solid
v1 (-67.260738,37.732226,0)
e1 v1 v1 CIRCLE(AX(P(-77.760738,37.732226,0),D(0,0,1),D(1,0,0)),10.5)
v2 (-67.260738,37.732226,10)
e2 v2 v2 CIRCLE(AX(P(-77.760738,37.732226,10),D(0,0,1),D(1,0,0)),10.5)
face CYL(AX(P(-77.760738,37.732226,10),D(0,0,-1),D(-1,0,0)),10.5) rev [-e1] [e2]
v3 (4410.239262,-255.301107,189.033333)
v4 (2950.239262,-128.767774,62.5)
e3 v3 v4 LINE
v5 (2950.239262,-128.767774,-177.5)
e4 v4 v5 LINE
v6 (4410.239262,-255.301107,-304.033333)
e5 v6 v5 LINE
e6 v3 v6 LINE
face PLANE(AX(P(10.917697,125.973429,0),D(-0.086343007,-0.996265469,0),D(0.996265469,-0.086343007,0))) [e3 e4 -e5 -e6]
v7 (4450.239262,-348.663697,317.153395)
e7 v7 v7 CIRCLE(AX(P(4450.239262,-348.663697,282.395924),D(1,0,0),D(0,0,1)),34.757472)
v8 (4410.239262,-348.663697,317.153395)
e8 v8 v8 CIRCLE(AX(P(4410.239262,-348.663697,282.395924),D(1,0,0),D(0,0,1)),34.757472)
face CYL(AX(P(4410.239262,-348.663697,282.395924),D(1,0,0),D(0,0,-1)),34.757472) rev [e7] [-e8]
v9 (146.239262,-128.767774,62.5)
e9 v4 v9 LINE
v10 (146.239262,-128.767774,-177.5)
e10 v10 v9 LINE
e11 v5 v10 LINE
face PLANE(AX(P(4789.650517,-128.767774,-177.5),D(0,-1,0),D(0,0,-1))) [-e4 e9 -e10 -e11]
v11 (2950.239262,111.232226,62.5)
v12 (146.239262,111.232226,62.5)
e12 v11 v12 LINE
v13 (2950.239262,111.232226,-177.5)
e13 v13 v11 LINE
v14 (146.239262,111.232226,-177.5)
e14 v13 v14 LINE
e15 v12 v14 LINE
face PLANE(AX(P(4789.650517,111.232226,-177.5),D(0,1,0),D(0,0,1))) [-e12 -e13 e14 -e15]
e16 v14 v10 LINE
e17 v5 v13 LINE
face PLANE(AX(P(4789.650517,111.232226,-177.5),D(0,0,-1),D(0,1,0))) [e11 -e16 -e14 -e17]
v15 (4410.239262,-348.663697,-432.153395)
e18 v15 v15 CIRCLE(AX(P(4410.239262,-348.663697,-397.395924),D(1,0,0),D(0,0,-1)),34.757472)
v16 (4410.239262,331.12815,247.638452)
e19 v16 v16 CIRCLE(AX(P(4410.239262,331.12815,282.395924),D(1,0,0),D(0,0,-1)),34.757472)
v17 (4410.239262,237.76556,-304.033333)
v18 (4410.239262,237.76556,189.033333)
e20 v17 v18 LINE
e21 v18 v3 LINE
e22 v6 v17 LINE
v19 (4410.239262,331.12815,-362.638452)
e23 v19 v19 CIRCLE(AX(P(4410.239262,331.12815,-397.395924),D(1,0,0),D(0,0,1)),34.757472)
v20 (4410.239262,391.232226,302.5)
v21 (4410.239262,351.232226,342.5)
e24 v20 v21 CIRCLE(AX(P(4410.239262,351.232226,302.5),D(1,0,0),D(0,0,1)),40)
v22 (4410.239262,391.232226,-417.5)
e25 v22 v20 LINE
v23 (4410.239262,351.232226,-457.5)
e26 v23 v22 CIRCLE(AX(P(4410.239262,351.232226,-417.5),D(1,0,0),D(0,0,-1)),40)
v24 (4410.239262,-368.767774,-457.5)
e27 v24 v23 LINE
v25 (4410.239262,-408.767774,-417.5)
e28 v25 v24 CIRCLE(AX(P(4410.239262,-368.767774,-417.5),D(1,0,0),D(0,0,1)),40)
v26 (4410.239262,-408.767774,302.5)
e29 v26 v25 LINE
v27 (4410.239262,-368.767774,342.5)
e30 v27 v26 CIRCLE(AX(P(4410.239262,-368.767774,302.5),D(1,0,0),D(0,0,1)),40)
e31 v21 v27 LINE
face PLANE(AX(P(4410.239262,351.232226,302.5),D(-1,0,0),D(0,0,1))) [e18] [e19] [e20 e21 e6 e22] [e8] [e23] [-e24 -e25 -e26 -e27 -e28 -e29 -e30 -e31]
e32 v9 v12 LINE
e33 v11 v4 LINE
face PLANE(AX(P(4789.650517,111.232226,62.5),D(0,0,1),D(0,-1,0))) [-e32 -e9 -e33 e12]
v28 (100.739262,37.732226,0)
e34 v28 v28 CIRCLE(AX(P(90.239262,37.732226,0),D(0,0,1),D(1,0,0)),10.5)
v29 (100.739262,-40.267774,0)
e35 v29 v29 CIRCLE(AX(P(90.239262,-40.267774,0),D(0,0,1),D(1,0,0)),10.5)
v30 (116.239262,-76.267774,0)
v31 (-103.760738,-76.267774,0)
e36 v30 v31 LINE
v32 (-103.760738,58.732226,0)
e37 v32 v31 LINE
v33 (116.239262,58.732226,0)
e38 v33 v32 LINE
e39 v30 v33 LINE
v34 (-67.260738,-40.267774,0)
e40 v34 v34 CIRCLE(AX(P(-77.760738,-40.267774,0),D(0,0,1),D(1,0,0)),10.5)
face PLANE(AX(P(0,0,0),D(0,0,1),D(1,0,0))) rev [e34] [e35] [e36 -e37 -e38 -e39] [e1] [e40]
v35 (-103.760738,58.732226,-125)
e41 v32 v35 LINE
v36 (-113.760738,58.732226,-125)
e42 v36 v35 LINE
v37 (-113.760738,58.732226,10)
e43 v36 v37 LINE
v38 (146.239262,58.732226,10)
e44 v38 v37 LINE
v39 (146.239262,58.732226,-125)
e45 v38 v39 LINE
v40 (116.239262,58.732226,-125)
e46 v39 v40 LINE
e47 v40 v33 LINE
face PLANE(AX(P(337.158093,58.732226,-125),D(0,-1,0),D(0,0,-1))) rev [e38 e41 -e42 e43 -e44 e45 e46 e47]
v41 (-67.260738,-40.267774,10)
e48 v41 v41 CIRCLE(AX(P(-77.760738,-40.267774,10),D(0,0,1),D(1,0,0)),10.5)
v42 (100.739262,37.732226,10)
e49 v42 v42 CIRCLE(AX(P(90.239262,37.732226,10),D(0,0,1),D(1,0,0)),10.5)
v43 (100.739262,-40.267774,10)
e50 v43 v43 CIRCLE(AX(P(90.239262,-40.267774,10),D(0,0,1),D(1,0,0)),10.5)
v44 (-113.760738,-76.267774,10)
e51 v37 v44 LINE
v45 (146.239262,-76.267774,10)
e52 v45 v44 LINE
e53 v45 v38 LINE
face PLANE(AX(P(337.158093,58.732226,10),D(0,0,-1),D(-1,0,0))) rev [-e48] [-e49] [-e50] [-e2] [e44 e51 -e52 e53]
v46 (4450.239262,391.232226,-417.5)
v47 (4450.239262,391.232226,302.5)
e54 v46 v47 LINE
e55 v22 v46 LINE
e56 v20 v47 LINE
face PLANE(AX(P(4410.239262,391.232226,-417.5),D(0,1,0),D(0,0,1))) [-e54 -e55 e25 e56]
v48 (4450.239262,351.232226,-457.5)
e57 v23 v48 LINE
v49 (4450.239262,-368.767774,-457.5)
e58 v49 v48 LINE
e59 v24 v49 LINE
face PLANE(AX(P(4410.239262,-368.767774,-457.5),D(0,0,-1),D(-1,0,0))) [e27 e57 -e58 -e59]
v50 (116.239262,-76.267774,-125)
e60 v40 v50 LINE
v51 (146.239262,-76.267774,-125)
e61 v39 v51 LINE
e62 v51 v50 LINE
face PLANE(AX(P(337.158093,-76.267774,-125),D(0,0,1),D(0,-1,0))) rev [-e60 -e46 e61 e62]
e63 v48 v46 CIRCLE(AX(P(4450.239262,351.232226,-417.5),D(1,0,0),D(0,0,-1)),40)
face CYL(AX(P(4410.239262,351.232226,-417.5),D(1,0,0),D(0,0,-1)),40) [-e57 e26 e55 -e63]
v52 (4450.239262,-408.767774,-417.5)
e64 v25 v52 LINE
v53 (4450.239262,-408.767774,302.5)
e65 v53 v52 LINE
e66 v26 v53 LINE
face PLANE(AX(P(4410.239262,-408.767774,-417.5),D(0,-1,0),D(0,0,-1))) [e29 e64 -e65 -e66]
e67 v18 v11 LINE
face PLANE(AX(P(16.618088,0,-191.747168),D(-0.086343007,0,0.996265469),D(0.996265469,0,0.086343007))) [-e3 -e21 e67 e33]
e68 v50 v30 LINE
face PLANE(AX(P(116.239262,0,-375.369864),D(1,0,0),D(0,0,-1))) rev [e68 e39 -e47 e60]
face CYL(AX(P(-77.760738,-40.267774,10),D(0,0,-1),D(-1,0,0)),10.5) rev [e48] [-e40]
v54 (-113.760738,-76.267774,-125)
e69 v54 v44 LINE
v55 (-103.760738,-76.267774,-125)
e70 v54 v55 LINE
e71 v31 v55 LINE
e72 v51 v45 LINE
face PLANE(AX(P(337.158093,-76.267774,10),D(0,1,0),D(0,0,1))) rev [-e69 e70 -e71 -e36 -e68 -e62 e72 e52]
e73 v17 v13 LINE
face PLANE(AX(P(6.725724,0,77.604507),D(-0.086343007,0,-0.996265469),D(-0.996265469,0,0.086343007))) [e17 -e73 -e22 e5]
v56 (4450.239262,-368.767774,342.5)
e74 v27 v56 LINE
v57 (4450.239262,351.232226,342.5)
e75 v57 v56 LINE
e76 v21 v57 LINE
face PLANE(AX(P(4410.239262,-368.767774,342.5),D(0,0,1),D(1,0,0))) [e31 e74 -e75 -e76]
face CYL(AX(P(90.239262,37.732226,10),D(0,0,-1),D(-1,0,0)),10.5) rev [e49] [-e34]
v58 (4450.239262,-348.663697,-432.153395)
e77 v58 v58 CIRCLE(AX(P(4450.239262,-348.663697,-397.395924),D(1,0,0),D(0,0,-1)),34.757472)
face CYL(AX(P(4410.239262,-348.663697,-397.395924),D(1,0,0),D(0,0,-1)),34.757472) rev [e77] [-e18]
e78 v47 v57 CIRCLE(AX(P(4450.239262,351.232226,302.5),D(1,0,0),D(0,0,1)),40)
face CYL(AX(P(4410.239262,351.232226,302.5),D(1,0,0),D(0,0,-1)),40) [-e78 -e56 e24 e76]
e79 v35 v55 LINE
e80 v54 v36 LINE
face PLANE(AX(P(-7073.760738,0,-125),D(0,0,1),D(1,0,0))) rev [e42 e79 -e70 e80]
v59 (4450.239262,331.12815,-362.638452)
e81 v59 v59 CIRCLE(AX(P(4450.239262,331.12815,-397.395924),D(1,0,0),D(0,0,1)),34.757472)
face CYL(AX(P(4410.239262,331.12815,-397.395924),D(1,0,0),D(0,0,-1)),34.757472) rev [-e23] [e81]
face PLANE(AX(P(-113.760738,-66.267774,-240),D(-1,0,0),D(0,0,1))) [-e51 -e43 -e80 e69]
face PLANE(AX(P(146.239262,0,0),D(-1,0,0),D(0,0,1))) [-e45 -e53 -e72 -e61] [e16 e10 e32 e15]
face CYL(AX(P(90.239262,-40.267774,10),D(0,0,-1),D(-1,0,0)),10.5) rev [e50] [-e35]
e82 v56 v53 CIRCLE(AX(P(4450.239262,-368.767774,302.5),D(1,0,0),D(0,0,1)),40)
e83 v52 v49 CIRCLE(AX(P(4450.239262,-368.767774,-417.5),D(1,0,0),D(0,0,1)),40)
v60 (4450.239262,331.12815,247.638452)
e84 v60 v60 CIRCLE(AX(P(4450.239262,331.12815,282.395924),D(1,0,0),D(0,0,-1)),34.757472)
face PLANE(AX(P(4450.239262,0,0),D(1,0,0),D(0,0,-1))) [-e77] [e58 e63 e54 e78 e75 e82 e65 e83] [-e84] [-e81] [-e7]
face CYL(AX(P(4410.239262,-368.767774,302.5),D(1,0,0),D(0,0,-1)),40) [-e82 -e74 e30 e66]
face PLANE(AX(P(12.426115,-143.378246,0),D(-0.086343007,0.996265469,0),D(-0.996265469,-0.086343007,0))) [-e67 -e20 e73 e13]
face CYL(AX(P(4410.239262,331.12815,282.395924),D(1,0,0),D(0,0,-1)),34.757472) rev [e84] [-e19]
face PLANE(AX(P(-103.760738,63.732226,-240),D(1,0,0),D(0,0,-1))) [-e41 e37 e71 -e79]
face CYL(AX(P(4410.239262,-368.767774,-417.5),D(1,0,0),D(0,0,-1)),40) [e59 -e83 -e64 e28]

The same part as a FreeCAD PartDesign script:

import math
import FreeCAD as App
import Part
import Sketcher

V = App.Vector

doc = App.newDocument("Part")
body = doc.addObject("PartDesign::Body", "Body")

# Sketch on XY plane
sketch1 = doc.addObject("Sketcher::SketchObject", "Sketch")
body.addObject(sketch1)
sketch1.AttachmentSupport = (doc.XY_Plane, [""])
sketch1.MapMode = "FlatFace"
sketch1.addGeometry([
    Part.LineSegment(V(-104, 64, 0), V(-104, -66, 0)),  # 0
    Part.LineSegment(V(-104, -66, 0), V(116, -66, 0)),  # 1
    Part.LineSegment(V(116, -66, 0), V(116, 64, 0)),  # 2
    Part.LineSegment(V(116, 64, 0), V(-104, 64, 0)),  # 3
    Part.Circle(V(-78, -40, 0), V(0, 0, 1), 10),  # 4
    Part.Circle(V(90, -40, 0), V(0, 0, 1), 10),  # 5
    Part.Circle(V(-78, 38, 0), V(0, 0, 1), 10),  # 6
    Part.Circle(V(90, 38, 0), V(0, 0, 1), 10),  # 7
], False)
sketch1.addConstraint([
    Sketcher.Constraint("Coincident", 0, 2, 1, 1),
    Sketcher.Constraint("Coincident", 1, 2, 2, 1),
    Sketcher.Constraint("Coincident", 2, 2, 3, 1),
    Sketcher.Constraint("Coincident", 3, 2, 0, 1),
    Sketcher.Constraint("Vertical", 0),
    Sketcher.Constraint("Horizontal", 1),
    Sketcher.Constraint("Vertical", 2),
    Sketcher.Constraint("Horizontal", 3),
    Sketcher.Constraint("Equal", 4, 5),
    Sketcher.Constraint("Equal", 5, 6),
    Sketcher.Constraint("Equal", 6, 7),
    Sketcher.Constraint("Horizontal", 4, 3, 5, 3),
    Sketcher.Constraint("Horizontal", 6, 3, 7, 3),
    Sketcher.Constraint("Vertical", 4, 3, 6, 3),
    Sketcher.Constraint("Vertical", 5, 3, 7, 3),
    Sketcher.Constraint("Diameter", 4, 21.0),
    Sketcher.Constraint("DistanceX", 1, 1, 1, 2, 220.0),
    Sketcher.Constraint("DistanceY", 0, 2, 0, 1, 130.0),
    Sketcher.Constraint("DistanceX", 4, 3, 5, 3, 168.0),
    Sketcher.Constraint("DistanceY", 4, 3, 6, 3, 78.0),
    Sketcher.Constraint("DistanceX", 0, 2, 4, 3, 26.0),
    Sketcher.Constraint("DistanceY", 0, 2, 4, 3, 26.0),
    Sketcher.Constraint("DistanceX", 4, 3, -1, 1, 77.760738),
    Sketcher.Constraint("DistanceY", 4, 3, -1, 1, 40.267774),
])
pad1 = doc.addObject("PartDesign::Pad", "Pad")
body.addObject(pad1)
pad1.Profile = sketch1
pad1.Length = 10

# Sketch on XY plane
sketch2 = doc.addObject("Sketcher::SketchObject", "Sketch001")
body.addObject(sketch2)
sketch2.AttachmentSupport = (doc.XY_Plane, [""])
sketch2.MapMode = "FlatFace"
sketch2.AttachmentOffset = App.Placement(V(0, 0, 10), App.Rotation())
sketch2.addGeometry([
    Part.LineSegment(V(-104, 64, 0), V(-114, 64, 0)),  # 0
    Part.LineSegment(V(-114, 64, 0), V(-114, -76, 0)),  # 1
    Part.LineSegment(V(-114, -76, 0), V(116, -76, 0)),  # 2
    Part.LineSegment(V(116, -76, 0), V(116, -66, 0)),  # 3
    Part.LineSegment(V(116, -66, 0), V(-104, -66, 0)),  # 4
    Part.LineSegment(V(-104, -66, 0), V(-104, 64, 0)),  # 5
], False)
sketch2.addConstraint([
    Sketcher.Constraint("Coincident", 0, 2, 1, 1),
    Sketcher.Constraint("Coincident", 1, 2, 2, 1),
    Sketcher.Constraint("Coincident", 2, 2, 3, 1),
    Sketcher.Constraint("Coincident", 3, 2, 4, 1),
    Sketcher.Constraint("Coincident", 4, 2, 5, 1),
    Sketcher.Constraint("Coincident", 5, 2, 0, 1),
    Sketcher.Constraint("Horizontal", 0),
    Sketcher.Constraint("Vertical", 1),
    Sketcher.Constraint("Horizontal", 2),
    Sketcher.Constraint("Vertical", 3),
    Sketcher.Constraint("Horizontal", 4),
    Sketcher.Constraint("Vertical", 5),
    Sketcher.Constraint("Equal", 0, 3),
    Sketcher.Constraint("DistanceX", 0, 2, 0, 1, 10.0),
    Sketcher.Constraint("DistanceX", 2, 1, 2, 2, 230.0),
    Sketcher.Constraint("DistanceY", 1, 2, 1, 1, 140.0),
    Sketcher.Constraint("DistanceX", 0, 2, -1, 1, 113.760738),
    Sketcher.Constraint("DistanceY", -1, 1, 0, 2, 63.732226),
])
pad2 = doc.addObject("PartDesign::Pad", "Pad001")
body.addObject(pad2)
pad2.Profile = sketch2
pad2.Length = 250
pad2.Reversed = True

# Sketch on XZ plane
sketch3 = doc.addObject("Sketcher::SketchObject", "Sketch002")
body.addObject(sketch3)
sketch3.AttachmentSupport = (doc.XZ_Plane, [""])
sketch3.MapMode = "FlatFace"
sketch3.AttachmentOffset = App.Placement(V(0, 0, -63.732226), App.Rotation())
sketch3.addGeometry([
    Part.LineSegment(V(116, 0, 0), V(-104, 0, 0)),  # 0
    Part.LineSegment(V(-104, 0, 0), V(-104, -240, 0)),  # 1
    Part.LineSegment(V(-104, -240, 0), V(-114, -240, 0)),  # 2
    Part.LineSegment(V(-114, -240, 0), V(-114, 10, 0)),  # 3
    Part.LineSegment(V(-114, 10, 0), V(116, 10, 0)),  # 4
    Part.LineSegment(V(116, 10, 0), V(116, 0, 0)),  # 5
], False)
sketch3.addConstraint([
    Sketcher.Constraint("Coincident", 0, 2, 1, 1),
    Sketcher.Constraint("Coincident", 1, 2, 2, 1),
    Sketcher.Constraint("Coincident", 2, 2, 3, 1),
    Sketcher.Constraint("Coincident", 3, 2, 4, 1),
    Sketcher.Constraint("Coincident", 4, 2, 5, 1),
    Sketcher.Constraint("Coincident", 5, 2, 0, 1),
    Sketcher.Constraint("Horizontal", 0),
    Sketcher.Constraint("Vertical", 1),
    Sketcher.Constraint("Horizontal", 2),
    Sketcher.Constraint("Vertical", 3),
    Sketcher.Constraint("Horizontal", 4),
    Sketcher.Constraint("Vertical", 5),
    Sketcher.Constraint("PointOnObject", 0, 2, -1),
    Sketcher.Constraint("Equal", 2, 5),
    Sketcher.Constraint("DistanceX", 0, 2, 0, 1, 220.0),
    Sketcher.Constraint("DistanceX", 2, 2, 2, 1, 10.0),
    Sketcher.Constraint("DistanceY", 1, 2, 1, 1, 240.0),
    Sketcher.Constraint("DistanceX", 0, 2, -1, 1, 103.760738),
])
pocket1 = doc.addObject("PartDesign::Pocket", "Pocket")
body.addObject(pocket1)
pocket1.Profile = sketch3
pocket1.Length = 5
pocket1.Reversed = True

# Sketch on XY plane
sketch4 = doc.addObject("Sketcher::SketchObject", "Sketch003")
body.addObject(sketch4)
sketch4.AttachmentSupport = (doc.XY_Plane, [""])
sketch4.MapMode = "FlatFace"
sketch4.AttachmentOffset = App.Placement(V(0, 0, 10), App.Rotation())
sketch4.addGeometry([
    Part.LineSegment(V(116, 59, 0), V(116, -76, 0)),
    Part.LineSegment(V(116, -76, 0), V(126, -76, 0)),
    Part.LineSegment(V(126, -76, 0), V(126, 59, 0)),
    Part.LineSegment(V(126, 59, 0), V(116, 59, 0)),
], False)
sketch4.addConstraint([
    Sketcher.Constraint("Coincident", 0, 2, 1, 1),
    Sketcher.Constraint("Coincident", 1, 2, 2, 1),
    Sketcher.Constraint("Coincident", 2, 2, 3, 1),
    Sketcher.Constraint("Coincident", 3, 2, 0, 1),
    Sketcher.Constraint("Vertical", 0),
    Sketcher.Constraint("Horizontal", 1),
    Sketcher.Constraint("Vertical", 2),
    Sketcher.Constraint("Horizontal", 3),
    Sketcher.Constraint("DistanceX", 1, 1, 1, 2, 10.0),
    Sketcher.Constraint("DistanceY", 0, 2, 0, 1, 135.0),
    Sketcher.Constraint("DistanceX", -1, 1, 0, 2, 116.239262),
    Sketcher.Constraint("DistanceY", 0, 2, -1, 1, 76.267774),
])
pad3 = doc.addObject("PartDesign::Pad", "Pad002")
body.addObject(pad3)
pad3.Profile = sketch4
pad3.Length = 250
pad3.Reversed = True
body2 = doc.addObject("PartDesign::Body", "Body001")

# Sketch on YZ plane
sketch5 = doc.addObject("Sketcher::SketchObject", "Sketch004")
body2.addObject(sketch5)
sketch5.AttachmentSupport = (doc.getObject("YZ_Plane001"), [""])
sketch5.MapMode = "FlatFace"
sketch5.AttachmentOffset = App.Placement(V(0, 0, 126.239262), App.Rotation())
sketch5.addGeometry([
    Part.LineSegment(V(59, 10, 0), V(-76, 10, 0)),
    Part.LineSegment(V(-76, 10, 0), V(-76, -240, 0)),
    Part.LineSegment(V(-76, -240, 0), V(59, -240, 0)),
    Part.LineSegment(V(59, -240, 0), V(59, 10, 0)),
], False)
sketch5.addConstraint([
    Sketcher.Constraint("Coincident", 0, 2, 1, 1),
    Sketcher.Constraint("Coincident", 1, 2, 2, 1),
    Sketcher.Constraint("Coincident", 2, 2, 3, 1),
    Sketcher.Constraint("Coincident", 3, 2, 0, 1),
    Sketcher.Constraint("Horizontal", 0),
    Sketcher.Constraint("Vertical", 1),
    Sketcher.Constraint("Horizontal", 2),
    Sketcher.Constraint("Vertical", 3),
    Sketcher.Constraint("DistanceX", 0, 2, 0, 1, 135.0),
    Sketcher.Constraint("DistanceY", 1, 2, 1, 1, 250.0),
    Sketcher.Constraint("DistanceY", -1, 1, 0, 2, 10.0),
    Sketcher.Constraint("DistanceX", 0, 2, -1, 1, 76.267774),
])
pad4 = doc.addObject("PartDesign::Pad", "Pad003")
body2.addObject(pad4)
pad4.Profile = sketch5
pad4.Length = 2800
body3 = doc.addObject("PartDesign::Body", "Body002")

# Sketch on YZ plane
sketch6 = doc.addObject("Sketcher::SketchObject", "Sketch005")
body3.addObject(sketch6)
sketch6.AttachmentSupport = (doc.getObject("YZ_Plane002"), [""])
sketch6.MapMode = "FlatFace"
sketch6.AttachmentOffset = App.Placement(V(0, 0, 2926.239262), App.Rotation())
sketch6.addGeometry([
    Part.LineSegment(V(59, -125, 0), V(-76, -125, 0)),
    Part.LineSegment(V(-76, -125, 0), V(-76, -240, 0)),
    Part.LineSegment(V(-76, -240, 0), V(59, -240, 0)),
    Part.LineSegment(V(59, -240, 0), V(59, -125, 0)),
], False)
sketch6.addConstraint([
    Sketcher.Constraint("Coincident", 0, 2, 1, 1),
    Sketcher.Constraint("Coincident", 1, 2, 2, 1),
    Sketcher.Constraint("Coincident", 2, 2, 3, 1),
    Sketcher.Constraint("Coincident", 3, 2, 0, 1),
    Sketcher.Constraint("Horizontal", 0),
    Sketcher.Constraint("Vertical", 1),
    Sketcher.Constraint("Horizontal", 2),
    Sketcher.Constraint("Vertical", 3),
    Sketcher.Constraint("DistanceX", 0, 2, 0, 1, 135.0),
    Sketcher.Constraint("DistanceY", 1, 2, 1, 1, 115.0),
    Sketcher.Constraint("DistanceY", 0, 2, -1, 1, 125.0),
    Sketcher.Constraint("DistanceX", 0, 2, -1, 1, 76.267774),
])
pad5 = doc.addObject("PartDesign::Pad", "Pad004")
body3.addObject(pad5)
pad5.Profile = sketch6
pad5.Length = 10000
pad5.Reversed = True
doc.recompute()

body4 = doc.addObject("PartDesign::Body", "Body003")
body4.BaseFeature = body3
boolean = doc.addObject("PartDesign::Boolean", "Boolean")
body.addObject(boolean)
boolean.Type = "Cut"
boolean.addObjects([body4])
doc.recompute()

boolean2 = doc.addObject("PartDesign::Boolean", "Boolean001")
body2.addObject(boolean2)
boolean2.Type = "Cut"
boolean2.addObjects([body3])
body.AllowCompound = True
doc.recompute()

boolean3 = doc.addObject("PartDesign::Boolean", "Boolean002")
body.addObject(boolean3)
boolean3.Type = "Fuse"
boolean3.addObjects([body2])

# Sketch on YZ plane
sketch7 = doc.addObject("Sketcher::SketchObject", "Sketch006")
body.addObject(sketch7)
sketch7.AttachmentSupport = (doc.YZ_Plane, [""])
sketch7.MapMode = "FlatFace"
sketch7.AttachmentOffset = App.Placement(V(0, 0, 2926.239262), App.Rotation())
sketch7.addGeometry([
    Part.LineSegment(V(76, 28, 0), V(-94, 28, 0)),
    Part.LineSegment(V(-94, 28, 0), V(-94, -142, 0)),
    Part.LineSegment(V(-94, -142, 0), V(76, -142, 0)),
    Part.LineSegment(V(76, -142, 0), V(76, 28, 0)),
], False)
sketch7.addConstraint([
    Sketcher.Constraint("Coincident", 0, 2, 1, 1),
    Sketcher.Constraint("Coincident", 1, 2, 2, 1),
    Sketcher.Constraint("Coincident", 2, 2, 3, 1),
    Sketcher.Constraint("Coincident", 3, 2, 0, 1),
    Sketcher.Constraint("Horizontal", 0),
    Sketcher.Constraint("Vertical", 1),
    Sketcher.Constraint("Horizontal", 2),
    Sketcher.Constraint("Vertical", 3),
    Sketcher.Constraint("Equal", 2, 1),
    Sketcher.Constraint("DistanceX", 0, 2, 0, 1, 170.0),
    Sketcher.Constraint("DistanceY", -1, 1, 0, 2, 27.5),
    Sketcher.Constraint("DistanceX", 0, 2, -1, 1, 93.767774),
])
pad6 = doc.addObject("PartDesign::Pad", "Pad005")
body.addObject(pad6)
pad6.Profile = sketch7
pad6.Length = 2800
pad6.Reversed = True

# Sketch on XZ plane
sketch8 = doc.addObject("Sketcher::SketchObject", "Sketch007")
body.addObject(sketch8)
sketch8.AttachmentSupport = (doc.XZ_Plane, [""])
sketch8.MapMode = "FlatFace"
sketch8.AttachmentOffset = App.Placement(V(0, 0, 76.267774), App.Rotation())
sketch8.addGeometry([
    Part.LineSegment(V(116, 0, 0), V(-104, 0, 0)),
    Part.LineSegment(V(-104, 0, 0), V(-104, -125, 0)),
    Part.LineSegment(V(-104, -125, 0), V(116, -125, 0)),
    Part.LineSegment(V(116, -125, 0), V(116, 0, 0)),
], False)
sketch8.addConstraint([
    Sketcher.Constraint("Coincident", 0, 2, 1, 1),
    Sketcher.Constraint("Coincident", 1, 2, 2, 1),
    Sketcher.Constraint("Coincident", 2, 2, 3, 1),
    Sketcher.Constraint("Coincident", 3, 2, 0, 1),
    Sketcher.Constraint("Horizontal", 0),
    Sketcher.Constraint("Vertical", 1),
    Sketcher.Constraint("Horizontal", 2),
    Sketcher.Constraint("Vertical", 3),
    Sketcher.Constraint("PointOnObject", 0, 2, -1),
    Sketcher.Constraint("DistanceX", 0, 2, 0, 1, 220.0),
    Sketcher.Constraint("DistanceY", 1, 2, 1, 1, 125.0),
    Sketcher.Constraint("DistanceX", 0, 2, -1, 1, 103.760738),
])
pocket2 = doc.addObject("PartDesign::Pocket", "Pocket001")
body.addObject(pocket2)
pocket2.Profile = sketch8
pocket2.Length = 50

# Sketch on YZ plane
sketch9 = doc.addObject("Sketcher::SketchObject", "Sketch008")
body.addObject(sketch9)
sketch9.AttachmentSupport = (doc.YZ_Plane, [""])
sketch9.MapMode = "FlatFace"
sketch9.AttachmentOffset = App.Placement(V(0, 0, 2926.239262), App.Rotation())
sketch9.addGeometry([
    Part.LineSegment(V(76, 28, 0), V(-94, 28, 0)),
    Part.LineSegment(V(-94, 28, 0), V(-94, -142, 0)),
    Part.LineSegment(V(-94, -142, 0), V(76, -142, 0)),
    Part.LineSegment(V(76, -142, 0), V(76, 28, 0)),
], False)
sketch9.addConstraint([
    Sketcher.Constraint("Coincident", 0, 2, 1, 1),
    Sketcher.Constraint("Coincident", 1, 2, 2, 1),
    Sketcher.Constraint("Coincident", 2, 2, 3, 1),
    Sketcher.Constraint("Coincident", 3, 2, 0, 1),
    Sketcher.Constraint("Horizontal", 0),
    Sketcher.Constraint("Vertical", 1),
    Sketcher.Constraint("Horizontal", 2),
    Sketcher.Constraint("Vertical", 3),
    Sketcher.Constraint("Equal", 2, 1),
    Sketcher.Constraint("DistanceX", 0, 2, 0, 1, 170.0),
    Sketcher.Constraint("DistanceY", -1, 1, 0, 2, 27.5),
    Sketcher.Constraint("DistanceX", 0, 2, -1, 1, 93.767774),
])
pad7 = doc.addObject("PartDesign::Pad", "Pad006")
body.addObject(pad7)
pad7.Profile = sketch9
pad7.Length = 1524

# Sketch on YZ plane
sketch10 = doc.addObject("Sketcher::SketchObject", "Sketch009")
body.addObject(sketch10)
sketch10.AttachmentSupport = (doc.YZ_Plane, [""])
sketch10.MapMode = "FlatFace"
sketch10.AttachmentOffset = App.Placement(V(0, 0, 126.239262), App.Rotation())
sketch10.addGeometry([
    Part.LineSegment(V(111, -178, 0), V(-129, -178, 0)),
    Part.LineSegment(V(-129, -178, 0), V(-129, 62, 0)),
    Part.LineSegment(V(-129, 62, 0), V(111, 62, 0)),
    Part.LineSegment(V(111, 62, 0), V(111, -178, 0)),
], False)
sketch10.addConstraint([
    Sketcher.Constraint("Coincident", 0, 2, 1, 1),
    Sketcher.Constraint("Coincident", 1, 2, 2, 1),
    Sketcher.Constraint("Coincident", 2, 2, 3, 1),
    Sketcher.Constraint("Coincident", 3, 2, 0, 1),
    Sketcher.Constraint("Horizontal", 0),
    Sketcher.Constraint("Vertical", 1),
    Sketcher.Constraint("Horizontal", 2),
    Sketcher.Constraint("Vertical", 3),
    Sketcher.Constraint("Equal", 2, 1),
    Sketcher.Constraint("DistanceX", 0, 2, 0, 1, 240.0),
    Sketcher.Constraint("DistanceY", 0, 2, -1, 1, 177.5),
    Sketcher.Constraint("DistanceX", 0, 2, -1, 1, 128.767774),
])
pad8 = doc.addObject("PartDesign::Pad", "Pad007")
body.addObject(pad8)
pad8.Profile = sketch10
pad8.Length = 4324

# Sketch on YZ plane
sketch11 = doc.addObject("Sketcher::SketchObject", "Sketch010")
body.addObject(sketch11)
sketch11.AttachmentSupport = (doc.YZ_Plane, [""])
sketch11.MapMode = "FlatFace"
sketch11.AttachmentOffset = App.Placement(V(0, 0, 126.239262), App.Rotation())
sketch11.addGeometry([
    Part.LineSegment(V(111, -178, 0), V(-129, -178, 0)),
    Part.LineSegment(V(-129, -178, 0), V(-129, 62, 0)),
    Part.LineSegment(V(-129, 62, 0), V(111, 62, 0)),
    Part.LineSegment(V(111, 62, 0), V(111, -178, 0)),
], False)
sketch11.addConstraint([
    Sketcher.Constraint("Coincident", 0, 2, 1, 1),
    Sketcher.Constraint("Coincident", 1, 2, 2, 1),
    Sketcher.Constraint("Coincident", 2, 2, 3, 1),
    Sketcher.Constraint("Coincident", 3, 2, 0, 1),
    Sketcher.Constraint("Horizontal", 0),
    Sketcher.Constraint("Vertical", 1),
    Sketcher.Constraint("Horizontal", 2),
    Sketcher.Constraint("Vertical", 3),
    Sketcher.Constraint("Equal", 2, 1),
    Sketcher.Constraint("DistanceX", 0, 2, 0, 1, 240.0),
    Sketcher.Constraint("DistanceY", 0, 2, -1, 1, 177.5),
    Sketcher.Constraint("DistanceX", 0, 2, -1, 1, 128.767774),
])
pocket3 = doc.addObject("PartDesign::Pocket", "Pocket002")
body.addObject(pocket3)
pocket3.Profile = sketch11
pocket3.Length = 20
pocket3.Reversed = True

# Sketch on YZ plane
sketch12 = doc.addObject("Sketcher::SketchObject", "Sketch011")
body.addObject(sketch12)
sketch12.AttachmentSupport = (doc.YZ_Plane, [""])
sketch12.MapMode = "FlatFace"
sketch12.AttachmentOffset = App.Placement(V(0, 0, 126.239262), App.Rotation())
sketch12.addGeometry([
    Part.LineSegment(V(59, 10, 0), V(-76, 10, 0)),
    Part.LineSegment(V(-76, 10, 0), V(-76, -125, 0)),
    Part.LineSegment(V(-76, -125, 0), V(59, -125, 0)),
    Part.LineSegment(V(59, -125, 0), V(59, 10, 0)),
], False)
sketch12.addConstraint([
    Sketcher.Constraint("Coincident", 0, 2, 1, 1),
    Sketcher.Constraint("Coincident", 1, 2, 2, 1),
    Sketcher.Constraint("Coincident", 2, 2, 3, 1),
    Sketcher.Constraint("Coincident", 3, 2, 0, 1),
    Sketcher.Constraint("Horizontal", 0),
    Sketcher.Constraint("Vertical", 1),
    Sketcher.Constraint("Horizontal", 2),
    Sketcher.Constraint("Vertical", 3),
    Sketcher.Constraint("Equal", 2, 1),
    Sketcher.Constraint("DistanceX", 0, 2, 0, 1, 135.0),
    Sketcher.Constraint("DistanceY", -1, 1, 0, 2, 10.0),
    Sketcher.Constraint("DistanceX", 0, 2, -1, 1, 76.267774),
])
pad9 = doc.addObject("PartDesign::Pad", "Pad008")
body.addObject(pad9)
pad9.Profile = sketch12
pad9.Length = 20

# Sketch on YZ plane
sketch13 = doc.addObject("Sketcher::SketchObject", "Sketch012")
body.addObject(sketch13)
sketch13.AttachmentSupport = (doc.YZ_Plane, [""])
sketch13.MapMode = "FlatFace"
sketch13.AttachmentOffset = App.Placement(V(0, 0, 4450.239262), App.Rotation())
sketch13.addGeometry([
    Part.LineSegment(V(241, 192, 0), V(-259, 192, 0)),
    Part.LineSegment(V(-259, 192, 0), V(-259, -308, 0)),
    Part.LineSegment(V(-259, -308, 0), V(241, -308, 0)),
    Part.LineSegment(V(241, -308, 0), V(241, 192, 0)),
], False)
sketch13.addConstraint([
    Sketcher.Constraint("Coincident", 0, 2, 1, 1),
    Sketcher.Constraint("Coincident", 1, 2, 2, 1),
    Sketcher.Constraint("Coincident", 2, 2, 3, 1),
    Sketcher.Constraint("Coincident", 3, 2, 0, 1),
    Sketcher.Constraint("Horizontal", 0),
    Sketcher.Constraint("Vertical", 1),
    Sketcher.Constraint("Horizontal", 2),
    Sketcher.Constraint("Vertical", 3),
    Sketcher.Constraint("Equal", 2, 1),
    Sketcher.Constraint("DistanceX", 0, 2, 0, 1, 500.0),
    Sketcher.Constraint("DistanceY", -1, 1, 0, 2, 192.5),
    Sketcher.Constraint("DistanceX", 0, 2, -1, 1, 258.767774),
])

# Sketch on YZ plane
sketch14 = doc.addObject("Sketcher::SketchObject", "Sketch013")
body.addObject(sketch14)
sketch14.AttachmentSupport = (doc.YZ_Plane, [""])
sketch14.MapMode = "FlatFace"
sketch14.AttachmentOffset = App.Placement(V(0, 0, 2950.239262), App.Rotation())
sketch14.addGeometry([
    Part.LineSegment(V(111, 62, 0), V(-129, 62, 0)),
    Part.LineSegment(V(-129, 62, 0), V(-129, -178, 0)),
    Part.LineSegment(V(-129, -178, 0), V(111, -178, 0)),
    Part.LineSegment(V(111, -178, 0), V(111, 62, 0)),
], False)
sketch14.addConstraint([
    Sketcher.Constraint("Coincident", 0, 2, 1, 1),
    Sketcher.Constraint("Coincident", 1, 2, 2, 1),
    Sketcher.Constraint("Coincident", 2, 2, 3, 1),
    Sketcher.Constraint("Coincident", 3, 2, 0, 1),
    Sketcher.Constraint("Horizontal", 0),
    Sketcher.Constraint("Vertical", 1),
    Sketcher.Constraint("Horizontal", 2),
    Sketcher.Constraint("Vertical", 3),
    Sketcher.Constraint("Equal", 2, 1),
    Sketcher.Constraint("DistanceX", 0, 2, 0, 1, 240.0),
    Sketcher.Constraint("DistanceY", -1, 1, 0, 2, 62.5),
    Sketcher.Constraint("DistanceX", 0, 2, -1, 1, 128.767774),
])

additiveloft = doc.addObject("PartDesign::AdditiveLoft", "AdditiveLoft")
body.addObject(additiveloft)
additiveloft.Profile = sketch13
additiveloft.Sections = [sketch14]

# Sketch on YZ plane
sketch15 = doc.addObject("Sketcher::SketchObject", "Sketch014")
body.addObject(sketch15)
sketch15.AttachmentSupport = (doc.YZ_Plane, [""])
sketch15.MapMode = "FlatFace"
sketch15.AttachmentOffset = App.Placement(V(0, 0, 4450.239262), App.Rotation())
sketch15.addGeometry([
    Part.LineSegment(V(-409, 302, 0), V(-409, -418, 0)),  # 0
    Part.ArcOfCircle(Part.Circle(V(-369, -418, 0), V(0, 0, 1), 40), math.radians(180), math.radians(270)),  # 1
    Part.LineSegment(V(-369, -458, 0), V(351, -458, 0)),  # 2
    Part.ArcOfCircle(Part.Circle(V(351, -417, 0), V(0, 0, 1), 40), math.radians(-90), math.radians(0)),  # 3
    Part.LineSegment(V(391, -418, 0), V(391, 302, 0)),  # 4
    Part.ArcOfCircle(Part.Circle(V(351, 302, 0), V(0, 0, 1), 40), math.radians(0), math.radians(90)),  # 5
    Part.LineSegment(V(351, 342, 0), V(-369, 342, 0)),  # 6
    Part.ArcOfCircle(Part.Circle(V(-369, 302, 0), V(0, 0, 1), 40), math.radians(90), math.radians(180)),  # 7
    Part.Circle(V(-349, -397, 0), V(0, 0, 1), 35),  # 8
    Part.Circle(V(-349, 282, 0), V(0, 0, 1), 35),  # 9
    Part.Circle(V(331, -397, 0), V(0, 0, 1), 35),  # 10
    Part.Circle(V(331, 282, 0), V(0, 0, 1), 35),  # 11
], False)
sketch15.addConstraint([
    Sketcher.Constraint("Tangent", 0, 2, 1, 1),
    Sketcher.Constraint("Tangent", 1, 2, 2, 1),
    Sketcher.Constraint("Tangent", 2, 2, 3, 1),
    Sketcher.Constraint("Tangent", 3, 2, 4, 1),
    Sketcher.Constraint("Tangent", 4, 2, 5, 1),
    Sketcher.Constraint("Tangent", 5, 2, 6, 1),
    Sketcher.Constraint("Tangent", 6, 2, 7, 1),
    Sketcher.Constraint("Tangent", 7, 2, 0, 1),
    Sketcher.Constraint("Vertical", 0),
    Sketcher.Constraint("Horizontal", 2),
    Sketcher.Constraint("Vertical", 4),
    Sketcher.Constraint("Horizontal", 6),
    Sketcher.Constraint("Equal", 1, 3),
    Sketcher.Constraint("Equal", 3, 5),
    Sketcher.Constraint("Equal", 5, 7),
    Sketcher.Constraint("Equal", 8, 9),
    Sketcher.Constraint("Equal", 9, 10),
    Sketcher.Constraint("Equal", 10, 11),
    Sketcher.Constraint("Horizontal", 8, 3, 10, 3),
    Sketcher.Constraint("Horizontal", 9, 3, 11, 3),
    Sketcher.Constraint("Vertical", 8, 3, 9, 3),
    Sketcher.Constraint("Vertical", 10, 3, 11, 3),
    Sketcher.Constraint("Equal", 6, 0),
    Sketcher.Constraint("Radius", 1, 40.0),
    Sketcher.Constraint("DistanceX", 2, 1, 2, 2, 720.0),
    Sketcher.Constraint("DistanceY", 1, 3, -1, 1, 417.5),
    Sketcher.Constraint("Diameter", 8, 69.514943),
    Sketcher.Constraint("DistanceX", -1, 1, 10, 3, 331.12815),
    Sketcher.Constraint("DistanceX", 1, 3, -1, 1, 368.767774),
    Sketcher.Constraint("DistanceX", 8, 3, -1, 1, 348.663697),
    Sketcher.Constraint("DistanceY", 8, 3, -1, 1, 397.395924),
    Sketcher.Constraint("DistanceY", -1, 1, 9, 3, 282.395924),
])
pad10 = doc.addObject("PartDesign::Pad", "Pad009")
body.addObject(pad10)
pad10.Profile = sketch15
pad10.Length = 40
pad10.Reversed = True

doc.recompute()
